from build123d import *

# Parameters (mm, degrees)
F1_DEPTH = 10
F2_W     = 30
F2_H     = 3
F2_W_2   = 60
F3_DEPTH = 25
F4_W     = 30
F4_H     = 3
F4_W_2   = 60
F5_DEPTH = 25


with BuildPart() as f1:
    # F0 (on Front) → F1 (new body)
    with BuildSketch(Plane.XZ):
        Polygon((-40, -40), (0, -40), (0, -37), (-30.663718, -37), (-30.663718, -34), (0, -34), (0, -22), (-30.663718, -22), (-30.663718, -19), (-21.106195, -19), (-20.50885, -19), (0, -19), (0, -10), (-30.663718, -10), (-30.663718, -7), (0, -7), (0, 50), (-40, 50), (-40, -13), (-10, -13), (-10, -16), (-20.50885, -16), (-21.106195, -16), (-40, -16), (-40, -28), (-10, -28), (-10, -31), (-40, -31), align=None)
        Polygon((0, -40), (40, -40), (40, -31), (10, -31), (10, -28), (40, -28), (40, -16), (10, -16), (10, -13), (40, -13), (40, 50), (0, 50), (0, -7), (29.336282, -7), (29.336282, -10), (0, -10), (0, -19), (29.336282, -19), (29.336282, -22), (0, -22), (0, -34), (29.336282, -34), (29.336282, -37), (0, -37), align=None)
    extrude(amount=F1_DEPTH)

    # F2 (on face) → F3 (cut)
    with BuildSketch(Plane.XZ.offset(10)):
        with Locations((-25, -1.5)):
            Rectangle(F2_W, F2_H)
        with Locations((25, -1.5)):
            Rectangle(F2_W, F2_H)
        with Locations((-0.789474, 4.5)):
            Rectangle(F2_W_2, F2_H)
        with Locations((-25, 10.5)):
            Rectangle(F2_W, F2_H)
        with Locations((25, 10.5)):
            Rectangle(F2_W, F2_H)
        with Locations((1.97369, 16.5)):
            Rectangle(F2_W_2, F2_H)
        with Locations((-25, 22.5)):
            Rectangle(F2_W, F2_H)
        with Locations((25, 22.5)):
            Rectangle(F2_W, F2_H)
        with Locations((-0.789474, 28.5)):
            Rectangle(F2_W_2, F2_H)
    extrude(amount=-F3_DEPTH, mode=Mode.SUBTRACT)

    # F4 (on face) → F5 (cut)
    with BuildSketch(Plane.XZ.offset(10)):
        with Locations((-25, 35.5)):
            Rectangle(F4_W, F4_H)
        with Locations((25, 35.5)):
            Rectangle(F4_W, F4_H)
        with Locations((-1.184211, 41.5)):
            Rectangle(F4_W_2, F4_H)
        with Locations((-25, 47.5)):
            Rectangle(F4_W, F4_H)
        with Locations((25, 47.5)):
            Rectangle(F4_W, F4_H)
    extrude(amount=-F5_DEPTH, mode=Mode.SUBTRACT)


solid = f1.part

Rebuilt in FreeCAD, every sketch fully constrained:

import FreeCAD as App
import Part
import Sketcher

V = App.Vector
Q = App.Units.Quantity


def add_polygon(sketch, points):
    """Adds a closed chain of lines whose ends are joined by coincident constraints."""
    first, n = sketch.GeometryCount, len(points)
    for a, b in zip(points, points[1:] + points[:1]):
        sketch.addGeometry(Part.LineSegment(App.Vector(*a, 0), App.Vector(*b, 0)), False)
    for i in range(n):
        sketch.addConstraint(Sketcher.Constraint("Coincident", first + i, 2, first + (i + 1) % n, 1))

doc = App.newDocument("Part")
body = doc.addObject("PartDesign::Body", "Body")

# Sketch on XZ plane
sketch1 = body.newObject("Sketcher::SketchObject", "Sketch")
sketch1.AttachmentSupport = (doc.getObject("XZ_Plane"), [""])
sketch1.MapMode = "FlatFace"
add_polygon(sketch1, [(-40, -40), (40, -40), (40, -31), (10, -31), (10, -28), (40, -28), (40, -16), (10, -16), (10, -13), (40, -13), (40, 50), (-40, 50), (-40, -13), (-10, -13), (-10, -16), (-40, -16), (-40, -28), (-10, -28), (-10, -31), (-40, -31)])  # lines 0-19
add_polygon(sketch1, [(-30.663718, -37), (-30.663718, -34), (29.336282, -34), (29.336282, -37)])  # lines 20-23
add_polygon(sketch1, [(-30.663718, -22), (-30.663718, -19), (29.336282, -19), (29.336282, -22)])  # lines 24-27
add_polygon(sketch1, [(-30.663718, -10), (-30.663718, -7), (29.336282, -7), (29.336282, -10)])  # lines 28-31
sketch1.addConstraint([
    Sketcher.Constraint("Horizontal", 0),
    Sketcher.Constraint("Vertical", 1),
    Sketcher.Constraint("Horizontal", 2),
    Sketcher.Constraint("Vertical", 3),
    Sketcher.Constraint("Horizontal", 4),
    Sketcher.Constraint("Vertical", 5),
    Sketcher.Constraint("Horizontal", 6),
    Sketcher.Constraint("Vertical", 7),
    Sketcher.Constraint("Horizontal", 8),
    Sketcher.Constraint("Vertical", 9),
    Sketcher.Constraint("Horizontal", 10),
    Sketcher.Constraint("Vertical", 11),
    Sketcher.Constraint("Horizontal", 12),
    Sketcher.Constraint("Vertical", 13),
    Sketcher.Constraint("Horizontal", 14),
    Sketcher.Constraint("Vertical", 15),
    Sketcher.Constraint("Horizontal", 16),
    Sketcher.Constraint("Vertical", 17),
    Sketcher.Constraint("Horizontal", 18),
    Sketcher.Constraint("Vertical", 19),
    Sketcher.Constraint("Vertical", 20),
    Sketcher.Constraint("Horizontal", 21),
    Sketcher.Constraint("Vertical", 22),
    Sketcher.Constraint("Horizontal", 23),
    Sketcher.Constraint("Vertical", 24),
    Sketcher.Constraint("Horizontal", 25),
    Sketcher.Constraint("Vertical", 26),
    Sketcher.Constraint("Horizontal", 27),
    Sketcher.Constraint("Vertical", 28),
    Sketcher.Constraint("Horizontal", 29),
    Sketcher.Constraint("Vertical", 30),
    Sketcher.Constraint("Horizontal", 31),
    Sketcher.Constraint("Symmetric", 8, 2, 11, 2, -2),
    Sketcher.Constraint("Symmetric", 6, 2, 13, 2, -2),
    Sketcher.Constraint("Symmetric", 4, 2, 15, 2, -2),
    Sketcher.Constraint("Symmetric", 2, 2, 17, 2, -2),
    Sketcher.Constraint("Vertical", 1, 2, 4, 2),
    Sketcher.Constraint("Vertical", 3, 2, 6, 2),
    Sketcher.Constraint("Vertical", 5, 2, 8, 2),
    Sketcher.Constraint("Vertical", 15, 2, 18, 2),
    Sketcher.Constraint("Vertical", 23, 2, 24, 2),
    Sketcher.Constraint("Vertical", 22, 2, 25, 2),
    Sketcher.Constraint("Vertical", 27, 2, 28, 2),
    Sketcher.Constraint("Vertical", 26, 2, 29, 2),
    Sketcher.Constraint("Equal", 3, 7),
    Sketcher.Constraint("Equal", 17, 20),
    Sketcher.Constraint("Equal", 22, 24),
    Sketcher.Constraint("Equal", 26, 28),
    Sketcher.Constraint("DistanceX", 0, 1, 0, 2, Q("80 mm")),
    Sketcher.Constraint("DistanceX", 2, 2, 2, 1, Q("30 mm")),
    Sketcher.Constraint("DistanceX", 21, 1, 21, 2, Q("60 mm")),
    Sketcher.Constraint("DistanceY", 1, 1, 1, 2, Q("9 mm")),
    Sketcher.Constraint("DistanceY", 3, 1, 3, 2, Q("3 mm")),
    Sketcher.Constraint("DistanceY", 5, 1, 5, 2, Q("12 mm")),
    Sketcher.Constraint("DistanceY", 9, 1, 9, 2, Q("63 mm")),
    Sketcher.Constraint("DistanceY", 0, 2, -1, 1, Q("40 mm")),
    Sketcher.Constraint("DistanceY", 20, 2, -1, 1, Q("34 mm")),
    Sketcher.Constraint("DistanceY", 24, 2, -1, 1, Q("19 mm")),
    Sketcher.Constraint("DistanceY", 28, 2, -1, 1, Q("7 mm")),
    Sketcher.Constraint("DistanceX", 20, 2, -1, 1, Q("30.663718 mm")),
])
pad1 = body.newObject("PartDesign::Pad", "Pad")
pad1.Profile = sketch1
pad1.Length = 10

# Sketch on XZ plane
sketch2 = body.newObject("Sketcher::SketchObject", "Sketch001")
sketch2.AttachmentSupport = (doc.getObject("XZ_Plane"), [""])
sketch2.MapMode = "FlatFace"
sketch2.AttachmentOffset = App.Placement(V(0, 0, 10), App.Rotation())
add_polygon(sketch2, [(-40, 0), (-40, -3), (-10, -3), (-10, 0)])  # lines 0-3
add_polygon(sketch2, [(10, 0), (10, -3), (40, -3), (40, 0)])  # lines 4-7
add_polygon(sketch2, [(-30.789474, 6), (-30.789474, 3), (29.210526, 3), (29.210526, 6)])  # lines 8-11
add_polygon(sketch2, [(-40, 12), (-40, 9), (-10, 9), (-10, 12)])  # lines 12-15
add_polygon(sketch2, [(10, 12), (10, 9), (40, 9), (40, 12)])  # lines 16-19
add_polygon(sketch2, [(-28.02631, 18), (-28.02631, 15), (31.97369, 15), (31.97369, 18)])  # lines 20-23
add_polygon(sketch2, [(-40, 24), (-40, 21), (-10, 21), (-10, 24)])  # lines 24-27
add_polygon(sketch2, [(10, 24), (10, 21), (40, 21), (40, 24)])  # lines 28-31
add_polygon(sketch2, [(-30.789474, 30), (-30.789474, 27), (29.210526, 27), (29.210526, 30)])  # lines 32-35
sketch2.addConstraint([
    Sketcher.Constraint("Vertical", 0),
    Sketcher.Constraint("Horizontal", 1),
    Sketcher.Constraint("Vertical", 2),
    Sketcher.Constraint("Horizontal", 3),
    Sketcher.Constraint("Vertical", 4),
    Sketcher.Constraint("Horizontal", 5),
    Sketcher.Constraint("Vertical", 6),
    Sketcher.Constraint("Horizontal", 7),
    Sketcher.Constraint("Vertical", 8),
    Sketcher.Constraint("Horizontal", 9),
    Sketcher.Constraint("Vertical", 10),
    Sketcher.Constraint("Horizontal", 11),
    Sketcher.Constraint("Vertical", 12),
    Sketcher.Constraint("Horizontal", 13),
    Sketcher.Constraint("Vertical", 14),
    Sketcher.Constraint("Horizontal", 15),
    Sketcher.Constraint("Vertical", 16),
    Sketcher.Constraint("Horizontal", 17),
    Sketcher.Constraint("Vertical", 18),
    Sketcher.Constraint("Horizontal", 19),
    Sketcher.Constraint("Vertical", 20),
    Sketcher.Constraint("Horizontal", 21),
    Sketcher.Constraint("Vertical", 22),
    Sketcher.Constraint("Horizontal", 23),
    Sketcher.Constraint("Vertical", 24),
    Sketcher.Constraint("Horizontal", 25),
    Sketcher.Constraint("Vertical", 26),
    Sketcher.Constraint("Horizontal", 27),
    Sketcher.Constraint("Vertical", 28),
    Sketcher.Constraint("Horizontal", 29),
    Sketcher.Constraint("Vertical", 30),
    Sketcher.Constraint("Horizontal", 31),
    Sketcher.Constraint("Vertical", 32),
    Sketcher.Constraint("Horizontal", 33),
    Sketcher.Constraint("Vertical", 34),
    Sketcher.Constraint("Horizontal", 35),
    Sketcher.Constraint("Symmetric", 3, 2, 6, 2, -1, 1),
    Sketcher.Constraint("Symmetric", 1, 2, 4, 2, -2),
    Sketcher.Constraint("Symmetric", 13, 2, 16, 2, -2),
    Sketcher.Constraint("Symmetric", 15, 2, 18, 2, -2),
    Sketcher.Constraint("Symmetric", 25, 2, 28, 2, -2),
    Sketcher.Constraint("Symmetric", 27, 2, 30, 2, -2),
    Sketcher.Constraint("PointOnObject", 2, 2, -1),
    Sketcher.Constraint("Vertical", 3, 2, 12, 2),
    Sketcher.Constraint("Vertical", 2, 2, 13, 2),
    Sketcher.Constraint("Vertical", 15, 2, 24, 2),
    Sketcher.Constraint("Vertical", 14, 2, 25, 2),
    Sketcher.Constraint("Vertical", 11, 2, 32, 2),
    Sketcher.Constraint("Vertical", 10, 2, 33, 2),
    Sketcher.Constraint("Equal", 11, 21),
    Sketcher.Constraint("Equal", 6, 8),
    Sketcher.Constraint("Equal", 10, 12),
    Sketcher.Constraint("Equal", 18, 20),
    Sketcher.Constraint("Equal", 22, 24),
    Sketcher.Constraint("Equal", 30, 32),
    Sketcher.Constraint("DistanceX", 1, 1, 1, 2, Q("30 mm")),
    Sketcher.Constraint("DistanceX", 9, 1, 9, 2, Q("60 mm")),
    Sketcher.Constraint("DistanceY", 0, 2, 0, 1, Q("3 mm")),
    Sketcher.Constraint("DistanceX", 0, 2, -1, 1, Q("40 mm")),
    Sketcher.Constraint("DistanceY", -1, 1, 8, 2, Q("3 mm")),
    Sketcher.Constraint("DistanceY", -1, 1, 12, 2, Q("9 mm")),
    Sketcher.Constraint("DistanceY", -1, 1, 20, 2, Q("15 mm")),
    Sketcher.Constraint("DistanceY", -1, 1, 24, 2, Q("21 mm")),
    Sketcher.Constraint("DistanceY", -1, 1, 32, 2, Q("27 mm")),
    Sketcher.Constraint("DistanceX", 20, 2, -1, 1, Q("28.02631 mm")),
    Sketcher.Constraint("DistanceX", 8, 2, -1, 1, Q("30.789474 mm")),
])
pocket1 = body.newObject("PartDesign::Pocket", "Pocket")
pocket1.Profile = sketch2
pocket1.Length = 25

# Sketch on XZ plane
sketch3 = body.newObject("Sketcher::SketchObject", "Sketch002")
sketch3.AttachmentSupport = (doc.getObject("XZ_Plane"), [""])
sketch3.MapMode = "FlatFace"
sketch3.AttachmentOffset = App.Placement(V(0, 0, 10), App.Rotation())
add_polygon(sketch3, [(-40, 37), (-40, 34), (-10, 34), (-10, 37)])  # lines 0-3
add_polygon(sketch3, [(10, 37), (10, 34), (40, 34), (40, 37)])  # lines 4-7
add_polygon(sketch3, [(-31.184211, 43), (-31.184211, 40), (28.815789, 40), (28.815789, 43)])  # lines 8-11
add_polygon(sketch3, [(-40, 49), (-40, 46), (-10, 46), (-10, 49)])  # lines 12-15
add_polygon(sketch3, [(10, 49), (10, 46), (40, 46), (40, 49)])  # lines 16-19
sketch3.addConstraint([
    Sketcher.Constraint("Vertical", 0),
    Sketcher.Constraint("Horizontal", 1),
    Sketcher.Constraint("Vertical", 2),
    Sketcher.Constraint("Horizontal", 3),
    Sketcher.Constraint("Vertical", 4),
    Sketcher.Constraint("Horizontal", 5),
    Sketcher.Constraint("Vertical", 6),
    Sketcher.Constraint("Horizontal", 7),
    Sketcher.Constraint("Vertical", 8),
    Sketcher.Constraint("Horizontal", 9),
    Sketcher.Constraint("Vertical", 10),
    Sketcher.Constraint("Horizontal", 11),
    Sketcher.Constraint("Vertical", 12),
    Sketcher.Constraint("Horizontal", 13),
    Sketcher.Constraint("Vertical", 14),
    Sketcher.Constraint("Horizontal", 15),
    Sketcher.Constraint("Vertical", 16),
    Sketcher.Constraint("Horizontal", 17),
    Sketcher.Constraint("Vertical", 18),
    Sketcher.Constraint("Horizontal", 19),
    Sketcher.Constraint("Symmetric", 1, 2, 4, 2, -2),
    Sketcher.Constraint("Symmetric", 3, 2, 6, 2, -2),
    Sketcher.Constraint("Symmetric", 13, 2, 16, 2, -2),
    Sketcher.Constraint("Symmetric", 15, 2, 18, 2, -2),
    Sketcher.Constraint("Vertical", 3, 2, 12, 2),
    Sketcher.Constraint("Vertical", 2, 2, 13, 2),
    Sketcher.Constraint("Equal", 6, 8),
    Sketcher.Constraint("Equal", 10, 12),
    Sketcher.Constraint("DistanceX", 1, 1, 1, 2, Q("30 mm")),
    Sketcher.Constraint("DistanceX", 9, 1, 9, 2, Q("60 mm")),
    Sketcher.Constraint("DistanceY", 0, 2, 0, 1, Q("3 mm")),
    Sketcher.Constraint("DistanceX", 0, 2, -1, 1, Q("40 mm")),
    Sketcher.Constraint("DistanceY", -1, 1, 0, 2, Q("34 mm")),
    Sketcher.Constraint("DistanceY", -1, 1, 8, 2, Q("40 mm")),
    Sketcher.Constraint("DistanceY", -1, 1, 12, 2, Q("46 mm")),
    Sketcher.Constraint("DistanceX", 8, 2, -1, 1, Q("31.184211 mm")),
])
pocket2 = body.newObject("PartDesign::Pocket", "Pocket001")
pocket2.Profile = sketch3
pocket2.Length = 25

doc.recompute()
